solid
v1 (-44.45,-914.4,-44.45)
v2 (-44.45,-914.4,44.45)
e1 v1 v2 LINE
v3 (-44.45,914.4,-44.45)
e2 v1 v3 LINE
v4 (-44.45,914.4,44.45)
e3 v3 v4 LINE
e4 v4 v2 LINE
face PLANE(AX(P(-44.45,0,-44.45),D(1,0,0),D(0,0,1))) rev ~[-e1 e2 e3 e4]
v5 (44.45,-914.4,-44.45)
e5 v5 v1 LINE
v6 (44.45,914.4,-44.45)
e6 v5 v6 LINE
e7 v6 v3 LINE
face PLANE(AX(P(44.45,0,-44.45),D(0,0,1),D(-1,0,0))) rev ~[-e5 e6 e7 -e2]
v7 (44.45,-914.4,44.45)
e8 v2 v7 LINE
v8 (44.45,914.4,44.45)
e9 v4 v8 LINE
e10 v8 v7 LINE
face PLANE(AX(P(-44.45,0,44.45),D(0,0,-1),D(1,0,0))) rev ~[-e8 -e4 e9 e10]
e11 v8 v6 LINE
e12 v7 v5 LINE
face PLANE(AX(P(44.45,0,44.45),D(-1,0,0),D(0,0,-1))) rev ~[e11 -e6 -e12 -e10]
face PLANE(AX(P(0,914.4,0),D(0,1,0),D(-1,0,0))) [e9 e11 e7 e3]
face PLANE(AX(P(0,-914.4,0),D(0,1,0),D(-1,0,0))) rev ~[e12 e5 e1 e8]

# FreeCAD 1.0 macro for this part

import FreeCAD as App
import Part
import Sketcher
from FreeCAD import Vector
Q = App.Units.Quantity

doc = App.newDocument("Part")
body = doc.addObject("PartDesign::Body", "Body")

sketch1 = doc.addObject("Sketcher::SketchObject", "Sketch")
body.addObject(sketch1)
sketch1.AttachmentSupport = (doc.XZ_Plane, [""])
sketch1.MapMode = "FlatFace"
sketch1.addGeometry([
    Part.LineSegment(Vector(44, 44, 0), Vector(44, -44, 0)),
    Part.LineSegment(Vector(44, -44, 0), Vector(-44, -44, 0)),
    Part.LineSegment(Vector(-44, -44, 0), Vector(-44, 44, 0)),
    Part.LineSegment(Vector(-44, 44, 0), Vector(44, 44, 0)),
], False)
sketch1.addConstraint([
    Sketcher.Constraint("Coincident", 0, 2, 1, 1),
    Sketcher.Constraint("Coincident", 1, 2, 2, 1),
    Sketcher.Constraint("Coincident", 2, 2, 3, 1),
    Sketcher.Constraint("Coincident", 3, 2, 0, 1),
    Sketcher.Constraint("Vertical", 0),
    Sketcher.Constraint("Horizontal", 1),
    Sketcher.Constraint("Vertical", 2),
    Sketcher.Constraint("Horizontal", 3),
    Sketcher.Constraint("Symmetric", 0, 2, 2, 2, -1, 1),
    Sketcher.Constraint("Equal", 3, 0),
    Sketcher.Constraint("DistanceX", 1, 2, 1, 1, Q("3.5 in")),
])
pad1 = doc.addObject("PartDesign::Pad", "Pad")
body.addObject(pad1)
pad1.Profile = sketch1
pad1.Length = Q("72 in")
pad1.Midplane = True

doc.recompute()
